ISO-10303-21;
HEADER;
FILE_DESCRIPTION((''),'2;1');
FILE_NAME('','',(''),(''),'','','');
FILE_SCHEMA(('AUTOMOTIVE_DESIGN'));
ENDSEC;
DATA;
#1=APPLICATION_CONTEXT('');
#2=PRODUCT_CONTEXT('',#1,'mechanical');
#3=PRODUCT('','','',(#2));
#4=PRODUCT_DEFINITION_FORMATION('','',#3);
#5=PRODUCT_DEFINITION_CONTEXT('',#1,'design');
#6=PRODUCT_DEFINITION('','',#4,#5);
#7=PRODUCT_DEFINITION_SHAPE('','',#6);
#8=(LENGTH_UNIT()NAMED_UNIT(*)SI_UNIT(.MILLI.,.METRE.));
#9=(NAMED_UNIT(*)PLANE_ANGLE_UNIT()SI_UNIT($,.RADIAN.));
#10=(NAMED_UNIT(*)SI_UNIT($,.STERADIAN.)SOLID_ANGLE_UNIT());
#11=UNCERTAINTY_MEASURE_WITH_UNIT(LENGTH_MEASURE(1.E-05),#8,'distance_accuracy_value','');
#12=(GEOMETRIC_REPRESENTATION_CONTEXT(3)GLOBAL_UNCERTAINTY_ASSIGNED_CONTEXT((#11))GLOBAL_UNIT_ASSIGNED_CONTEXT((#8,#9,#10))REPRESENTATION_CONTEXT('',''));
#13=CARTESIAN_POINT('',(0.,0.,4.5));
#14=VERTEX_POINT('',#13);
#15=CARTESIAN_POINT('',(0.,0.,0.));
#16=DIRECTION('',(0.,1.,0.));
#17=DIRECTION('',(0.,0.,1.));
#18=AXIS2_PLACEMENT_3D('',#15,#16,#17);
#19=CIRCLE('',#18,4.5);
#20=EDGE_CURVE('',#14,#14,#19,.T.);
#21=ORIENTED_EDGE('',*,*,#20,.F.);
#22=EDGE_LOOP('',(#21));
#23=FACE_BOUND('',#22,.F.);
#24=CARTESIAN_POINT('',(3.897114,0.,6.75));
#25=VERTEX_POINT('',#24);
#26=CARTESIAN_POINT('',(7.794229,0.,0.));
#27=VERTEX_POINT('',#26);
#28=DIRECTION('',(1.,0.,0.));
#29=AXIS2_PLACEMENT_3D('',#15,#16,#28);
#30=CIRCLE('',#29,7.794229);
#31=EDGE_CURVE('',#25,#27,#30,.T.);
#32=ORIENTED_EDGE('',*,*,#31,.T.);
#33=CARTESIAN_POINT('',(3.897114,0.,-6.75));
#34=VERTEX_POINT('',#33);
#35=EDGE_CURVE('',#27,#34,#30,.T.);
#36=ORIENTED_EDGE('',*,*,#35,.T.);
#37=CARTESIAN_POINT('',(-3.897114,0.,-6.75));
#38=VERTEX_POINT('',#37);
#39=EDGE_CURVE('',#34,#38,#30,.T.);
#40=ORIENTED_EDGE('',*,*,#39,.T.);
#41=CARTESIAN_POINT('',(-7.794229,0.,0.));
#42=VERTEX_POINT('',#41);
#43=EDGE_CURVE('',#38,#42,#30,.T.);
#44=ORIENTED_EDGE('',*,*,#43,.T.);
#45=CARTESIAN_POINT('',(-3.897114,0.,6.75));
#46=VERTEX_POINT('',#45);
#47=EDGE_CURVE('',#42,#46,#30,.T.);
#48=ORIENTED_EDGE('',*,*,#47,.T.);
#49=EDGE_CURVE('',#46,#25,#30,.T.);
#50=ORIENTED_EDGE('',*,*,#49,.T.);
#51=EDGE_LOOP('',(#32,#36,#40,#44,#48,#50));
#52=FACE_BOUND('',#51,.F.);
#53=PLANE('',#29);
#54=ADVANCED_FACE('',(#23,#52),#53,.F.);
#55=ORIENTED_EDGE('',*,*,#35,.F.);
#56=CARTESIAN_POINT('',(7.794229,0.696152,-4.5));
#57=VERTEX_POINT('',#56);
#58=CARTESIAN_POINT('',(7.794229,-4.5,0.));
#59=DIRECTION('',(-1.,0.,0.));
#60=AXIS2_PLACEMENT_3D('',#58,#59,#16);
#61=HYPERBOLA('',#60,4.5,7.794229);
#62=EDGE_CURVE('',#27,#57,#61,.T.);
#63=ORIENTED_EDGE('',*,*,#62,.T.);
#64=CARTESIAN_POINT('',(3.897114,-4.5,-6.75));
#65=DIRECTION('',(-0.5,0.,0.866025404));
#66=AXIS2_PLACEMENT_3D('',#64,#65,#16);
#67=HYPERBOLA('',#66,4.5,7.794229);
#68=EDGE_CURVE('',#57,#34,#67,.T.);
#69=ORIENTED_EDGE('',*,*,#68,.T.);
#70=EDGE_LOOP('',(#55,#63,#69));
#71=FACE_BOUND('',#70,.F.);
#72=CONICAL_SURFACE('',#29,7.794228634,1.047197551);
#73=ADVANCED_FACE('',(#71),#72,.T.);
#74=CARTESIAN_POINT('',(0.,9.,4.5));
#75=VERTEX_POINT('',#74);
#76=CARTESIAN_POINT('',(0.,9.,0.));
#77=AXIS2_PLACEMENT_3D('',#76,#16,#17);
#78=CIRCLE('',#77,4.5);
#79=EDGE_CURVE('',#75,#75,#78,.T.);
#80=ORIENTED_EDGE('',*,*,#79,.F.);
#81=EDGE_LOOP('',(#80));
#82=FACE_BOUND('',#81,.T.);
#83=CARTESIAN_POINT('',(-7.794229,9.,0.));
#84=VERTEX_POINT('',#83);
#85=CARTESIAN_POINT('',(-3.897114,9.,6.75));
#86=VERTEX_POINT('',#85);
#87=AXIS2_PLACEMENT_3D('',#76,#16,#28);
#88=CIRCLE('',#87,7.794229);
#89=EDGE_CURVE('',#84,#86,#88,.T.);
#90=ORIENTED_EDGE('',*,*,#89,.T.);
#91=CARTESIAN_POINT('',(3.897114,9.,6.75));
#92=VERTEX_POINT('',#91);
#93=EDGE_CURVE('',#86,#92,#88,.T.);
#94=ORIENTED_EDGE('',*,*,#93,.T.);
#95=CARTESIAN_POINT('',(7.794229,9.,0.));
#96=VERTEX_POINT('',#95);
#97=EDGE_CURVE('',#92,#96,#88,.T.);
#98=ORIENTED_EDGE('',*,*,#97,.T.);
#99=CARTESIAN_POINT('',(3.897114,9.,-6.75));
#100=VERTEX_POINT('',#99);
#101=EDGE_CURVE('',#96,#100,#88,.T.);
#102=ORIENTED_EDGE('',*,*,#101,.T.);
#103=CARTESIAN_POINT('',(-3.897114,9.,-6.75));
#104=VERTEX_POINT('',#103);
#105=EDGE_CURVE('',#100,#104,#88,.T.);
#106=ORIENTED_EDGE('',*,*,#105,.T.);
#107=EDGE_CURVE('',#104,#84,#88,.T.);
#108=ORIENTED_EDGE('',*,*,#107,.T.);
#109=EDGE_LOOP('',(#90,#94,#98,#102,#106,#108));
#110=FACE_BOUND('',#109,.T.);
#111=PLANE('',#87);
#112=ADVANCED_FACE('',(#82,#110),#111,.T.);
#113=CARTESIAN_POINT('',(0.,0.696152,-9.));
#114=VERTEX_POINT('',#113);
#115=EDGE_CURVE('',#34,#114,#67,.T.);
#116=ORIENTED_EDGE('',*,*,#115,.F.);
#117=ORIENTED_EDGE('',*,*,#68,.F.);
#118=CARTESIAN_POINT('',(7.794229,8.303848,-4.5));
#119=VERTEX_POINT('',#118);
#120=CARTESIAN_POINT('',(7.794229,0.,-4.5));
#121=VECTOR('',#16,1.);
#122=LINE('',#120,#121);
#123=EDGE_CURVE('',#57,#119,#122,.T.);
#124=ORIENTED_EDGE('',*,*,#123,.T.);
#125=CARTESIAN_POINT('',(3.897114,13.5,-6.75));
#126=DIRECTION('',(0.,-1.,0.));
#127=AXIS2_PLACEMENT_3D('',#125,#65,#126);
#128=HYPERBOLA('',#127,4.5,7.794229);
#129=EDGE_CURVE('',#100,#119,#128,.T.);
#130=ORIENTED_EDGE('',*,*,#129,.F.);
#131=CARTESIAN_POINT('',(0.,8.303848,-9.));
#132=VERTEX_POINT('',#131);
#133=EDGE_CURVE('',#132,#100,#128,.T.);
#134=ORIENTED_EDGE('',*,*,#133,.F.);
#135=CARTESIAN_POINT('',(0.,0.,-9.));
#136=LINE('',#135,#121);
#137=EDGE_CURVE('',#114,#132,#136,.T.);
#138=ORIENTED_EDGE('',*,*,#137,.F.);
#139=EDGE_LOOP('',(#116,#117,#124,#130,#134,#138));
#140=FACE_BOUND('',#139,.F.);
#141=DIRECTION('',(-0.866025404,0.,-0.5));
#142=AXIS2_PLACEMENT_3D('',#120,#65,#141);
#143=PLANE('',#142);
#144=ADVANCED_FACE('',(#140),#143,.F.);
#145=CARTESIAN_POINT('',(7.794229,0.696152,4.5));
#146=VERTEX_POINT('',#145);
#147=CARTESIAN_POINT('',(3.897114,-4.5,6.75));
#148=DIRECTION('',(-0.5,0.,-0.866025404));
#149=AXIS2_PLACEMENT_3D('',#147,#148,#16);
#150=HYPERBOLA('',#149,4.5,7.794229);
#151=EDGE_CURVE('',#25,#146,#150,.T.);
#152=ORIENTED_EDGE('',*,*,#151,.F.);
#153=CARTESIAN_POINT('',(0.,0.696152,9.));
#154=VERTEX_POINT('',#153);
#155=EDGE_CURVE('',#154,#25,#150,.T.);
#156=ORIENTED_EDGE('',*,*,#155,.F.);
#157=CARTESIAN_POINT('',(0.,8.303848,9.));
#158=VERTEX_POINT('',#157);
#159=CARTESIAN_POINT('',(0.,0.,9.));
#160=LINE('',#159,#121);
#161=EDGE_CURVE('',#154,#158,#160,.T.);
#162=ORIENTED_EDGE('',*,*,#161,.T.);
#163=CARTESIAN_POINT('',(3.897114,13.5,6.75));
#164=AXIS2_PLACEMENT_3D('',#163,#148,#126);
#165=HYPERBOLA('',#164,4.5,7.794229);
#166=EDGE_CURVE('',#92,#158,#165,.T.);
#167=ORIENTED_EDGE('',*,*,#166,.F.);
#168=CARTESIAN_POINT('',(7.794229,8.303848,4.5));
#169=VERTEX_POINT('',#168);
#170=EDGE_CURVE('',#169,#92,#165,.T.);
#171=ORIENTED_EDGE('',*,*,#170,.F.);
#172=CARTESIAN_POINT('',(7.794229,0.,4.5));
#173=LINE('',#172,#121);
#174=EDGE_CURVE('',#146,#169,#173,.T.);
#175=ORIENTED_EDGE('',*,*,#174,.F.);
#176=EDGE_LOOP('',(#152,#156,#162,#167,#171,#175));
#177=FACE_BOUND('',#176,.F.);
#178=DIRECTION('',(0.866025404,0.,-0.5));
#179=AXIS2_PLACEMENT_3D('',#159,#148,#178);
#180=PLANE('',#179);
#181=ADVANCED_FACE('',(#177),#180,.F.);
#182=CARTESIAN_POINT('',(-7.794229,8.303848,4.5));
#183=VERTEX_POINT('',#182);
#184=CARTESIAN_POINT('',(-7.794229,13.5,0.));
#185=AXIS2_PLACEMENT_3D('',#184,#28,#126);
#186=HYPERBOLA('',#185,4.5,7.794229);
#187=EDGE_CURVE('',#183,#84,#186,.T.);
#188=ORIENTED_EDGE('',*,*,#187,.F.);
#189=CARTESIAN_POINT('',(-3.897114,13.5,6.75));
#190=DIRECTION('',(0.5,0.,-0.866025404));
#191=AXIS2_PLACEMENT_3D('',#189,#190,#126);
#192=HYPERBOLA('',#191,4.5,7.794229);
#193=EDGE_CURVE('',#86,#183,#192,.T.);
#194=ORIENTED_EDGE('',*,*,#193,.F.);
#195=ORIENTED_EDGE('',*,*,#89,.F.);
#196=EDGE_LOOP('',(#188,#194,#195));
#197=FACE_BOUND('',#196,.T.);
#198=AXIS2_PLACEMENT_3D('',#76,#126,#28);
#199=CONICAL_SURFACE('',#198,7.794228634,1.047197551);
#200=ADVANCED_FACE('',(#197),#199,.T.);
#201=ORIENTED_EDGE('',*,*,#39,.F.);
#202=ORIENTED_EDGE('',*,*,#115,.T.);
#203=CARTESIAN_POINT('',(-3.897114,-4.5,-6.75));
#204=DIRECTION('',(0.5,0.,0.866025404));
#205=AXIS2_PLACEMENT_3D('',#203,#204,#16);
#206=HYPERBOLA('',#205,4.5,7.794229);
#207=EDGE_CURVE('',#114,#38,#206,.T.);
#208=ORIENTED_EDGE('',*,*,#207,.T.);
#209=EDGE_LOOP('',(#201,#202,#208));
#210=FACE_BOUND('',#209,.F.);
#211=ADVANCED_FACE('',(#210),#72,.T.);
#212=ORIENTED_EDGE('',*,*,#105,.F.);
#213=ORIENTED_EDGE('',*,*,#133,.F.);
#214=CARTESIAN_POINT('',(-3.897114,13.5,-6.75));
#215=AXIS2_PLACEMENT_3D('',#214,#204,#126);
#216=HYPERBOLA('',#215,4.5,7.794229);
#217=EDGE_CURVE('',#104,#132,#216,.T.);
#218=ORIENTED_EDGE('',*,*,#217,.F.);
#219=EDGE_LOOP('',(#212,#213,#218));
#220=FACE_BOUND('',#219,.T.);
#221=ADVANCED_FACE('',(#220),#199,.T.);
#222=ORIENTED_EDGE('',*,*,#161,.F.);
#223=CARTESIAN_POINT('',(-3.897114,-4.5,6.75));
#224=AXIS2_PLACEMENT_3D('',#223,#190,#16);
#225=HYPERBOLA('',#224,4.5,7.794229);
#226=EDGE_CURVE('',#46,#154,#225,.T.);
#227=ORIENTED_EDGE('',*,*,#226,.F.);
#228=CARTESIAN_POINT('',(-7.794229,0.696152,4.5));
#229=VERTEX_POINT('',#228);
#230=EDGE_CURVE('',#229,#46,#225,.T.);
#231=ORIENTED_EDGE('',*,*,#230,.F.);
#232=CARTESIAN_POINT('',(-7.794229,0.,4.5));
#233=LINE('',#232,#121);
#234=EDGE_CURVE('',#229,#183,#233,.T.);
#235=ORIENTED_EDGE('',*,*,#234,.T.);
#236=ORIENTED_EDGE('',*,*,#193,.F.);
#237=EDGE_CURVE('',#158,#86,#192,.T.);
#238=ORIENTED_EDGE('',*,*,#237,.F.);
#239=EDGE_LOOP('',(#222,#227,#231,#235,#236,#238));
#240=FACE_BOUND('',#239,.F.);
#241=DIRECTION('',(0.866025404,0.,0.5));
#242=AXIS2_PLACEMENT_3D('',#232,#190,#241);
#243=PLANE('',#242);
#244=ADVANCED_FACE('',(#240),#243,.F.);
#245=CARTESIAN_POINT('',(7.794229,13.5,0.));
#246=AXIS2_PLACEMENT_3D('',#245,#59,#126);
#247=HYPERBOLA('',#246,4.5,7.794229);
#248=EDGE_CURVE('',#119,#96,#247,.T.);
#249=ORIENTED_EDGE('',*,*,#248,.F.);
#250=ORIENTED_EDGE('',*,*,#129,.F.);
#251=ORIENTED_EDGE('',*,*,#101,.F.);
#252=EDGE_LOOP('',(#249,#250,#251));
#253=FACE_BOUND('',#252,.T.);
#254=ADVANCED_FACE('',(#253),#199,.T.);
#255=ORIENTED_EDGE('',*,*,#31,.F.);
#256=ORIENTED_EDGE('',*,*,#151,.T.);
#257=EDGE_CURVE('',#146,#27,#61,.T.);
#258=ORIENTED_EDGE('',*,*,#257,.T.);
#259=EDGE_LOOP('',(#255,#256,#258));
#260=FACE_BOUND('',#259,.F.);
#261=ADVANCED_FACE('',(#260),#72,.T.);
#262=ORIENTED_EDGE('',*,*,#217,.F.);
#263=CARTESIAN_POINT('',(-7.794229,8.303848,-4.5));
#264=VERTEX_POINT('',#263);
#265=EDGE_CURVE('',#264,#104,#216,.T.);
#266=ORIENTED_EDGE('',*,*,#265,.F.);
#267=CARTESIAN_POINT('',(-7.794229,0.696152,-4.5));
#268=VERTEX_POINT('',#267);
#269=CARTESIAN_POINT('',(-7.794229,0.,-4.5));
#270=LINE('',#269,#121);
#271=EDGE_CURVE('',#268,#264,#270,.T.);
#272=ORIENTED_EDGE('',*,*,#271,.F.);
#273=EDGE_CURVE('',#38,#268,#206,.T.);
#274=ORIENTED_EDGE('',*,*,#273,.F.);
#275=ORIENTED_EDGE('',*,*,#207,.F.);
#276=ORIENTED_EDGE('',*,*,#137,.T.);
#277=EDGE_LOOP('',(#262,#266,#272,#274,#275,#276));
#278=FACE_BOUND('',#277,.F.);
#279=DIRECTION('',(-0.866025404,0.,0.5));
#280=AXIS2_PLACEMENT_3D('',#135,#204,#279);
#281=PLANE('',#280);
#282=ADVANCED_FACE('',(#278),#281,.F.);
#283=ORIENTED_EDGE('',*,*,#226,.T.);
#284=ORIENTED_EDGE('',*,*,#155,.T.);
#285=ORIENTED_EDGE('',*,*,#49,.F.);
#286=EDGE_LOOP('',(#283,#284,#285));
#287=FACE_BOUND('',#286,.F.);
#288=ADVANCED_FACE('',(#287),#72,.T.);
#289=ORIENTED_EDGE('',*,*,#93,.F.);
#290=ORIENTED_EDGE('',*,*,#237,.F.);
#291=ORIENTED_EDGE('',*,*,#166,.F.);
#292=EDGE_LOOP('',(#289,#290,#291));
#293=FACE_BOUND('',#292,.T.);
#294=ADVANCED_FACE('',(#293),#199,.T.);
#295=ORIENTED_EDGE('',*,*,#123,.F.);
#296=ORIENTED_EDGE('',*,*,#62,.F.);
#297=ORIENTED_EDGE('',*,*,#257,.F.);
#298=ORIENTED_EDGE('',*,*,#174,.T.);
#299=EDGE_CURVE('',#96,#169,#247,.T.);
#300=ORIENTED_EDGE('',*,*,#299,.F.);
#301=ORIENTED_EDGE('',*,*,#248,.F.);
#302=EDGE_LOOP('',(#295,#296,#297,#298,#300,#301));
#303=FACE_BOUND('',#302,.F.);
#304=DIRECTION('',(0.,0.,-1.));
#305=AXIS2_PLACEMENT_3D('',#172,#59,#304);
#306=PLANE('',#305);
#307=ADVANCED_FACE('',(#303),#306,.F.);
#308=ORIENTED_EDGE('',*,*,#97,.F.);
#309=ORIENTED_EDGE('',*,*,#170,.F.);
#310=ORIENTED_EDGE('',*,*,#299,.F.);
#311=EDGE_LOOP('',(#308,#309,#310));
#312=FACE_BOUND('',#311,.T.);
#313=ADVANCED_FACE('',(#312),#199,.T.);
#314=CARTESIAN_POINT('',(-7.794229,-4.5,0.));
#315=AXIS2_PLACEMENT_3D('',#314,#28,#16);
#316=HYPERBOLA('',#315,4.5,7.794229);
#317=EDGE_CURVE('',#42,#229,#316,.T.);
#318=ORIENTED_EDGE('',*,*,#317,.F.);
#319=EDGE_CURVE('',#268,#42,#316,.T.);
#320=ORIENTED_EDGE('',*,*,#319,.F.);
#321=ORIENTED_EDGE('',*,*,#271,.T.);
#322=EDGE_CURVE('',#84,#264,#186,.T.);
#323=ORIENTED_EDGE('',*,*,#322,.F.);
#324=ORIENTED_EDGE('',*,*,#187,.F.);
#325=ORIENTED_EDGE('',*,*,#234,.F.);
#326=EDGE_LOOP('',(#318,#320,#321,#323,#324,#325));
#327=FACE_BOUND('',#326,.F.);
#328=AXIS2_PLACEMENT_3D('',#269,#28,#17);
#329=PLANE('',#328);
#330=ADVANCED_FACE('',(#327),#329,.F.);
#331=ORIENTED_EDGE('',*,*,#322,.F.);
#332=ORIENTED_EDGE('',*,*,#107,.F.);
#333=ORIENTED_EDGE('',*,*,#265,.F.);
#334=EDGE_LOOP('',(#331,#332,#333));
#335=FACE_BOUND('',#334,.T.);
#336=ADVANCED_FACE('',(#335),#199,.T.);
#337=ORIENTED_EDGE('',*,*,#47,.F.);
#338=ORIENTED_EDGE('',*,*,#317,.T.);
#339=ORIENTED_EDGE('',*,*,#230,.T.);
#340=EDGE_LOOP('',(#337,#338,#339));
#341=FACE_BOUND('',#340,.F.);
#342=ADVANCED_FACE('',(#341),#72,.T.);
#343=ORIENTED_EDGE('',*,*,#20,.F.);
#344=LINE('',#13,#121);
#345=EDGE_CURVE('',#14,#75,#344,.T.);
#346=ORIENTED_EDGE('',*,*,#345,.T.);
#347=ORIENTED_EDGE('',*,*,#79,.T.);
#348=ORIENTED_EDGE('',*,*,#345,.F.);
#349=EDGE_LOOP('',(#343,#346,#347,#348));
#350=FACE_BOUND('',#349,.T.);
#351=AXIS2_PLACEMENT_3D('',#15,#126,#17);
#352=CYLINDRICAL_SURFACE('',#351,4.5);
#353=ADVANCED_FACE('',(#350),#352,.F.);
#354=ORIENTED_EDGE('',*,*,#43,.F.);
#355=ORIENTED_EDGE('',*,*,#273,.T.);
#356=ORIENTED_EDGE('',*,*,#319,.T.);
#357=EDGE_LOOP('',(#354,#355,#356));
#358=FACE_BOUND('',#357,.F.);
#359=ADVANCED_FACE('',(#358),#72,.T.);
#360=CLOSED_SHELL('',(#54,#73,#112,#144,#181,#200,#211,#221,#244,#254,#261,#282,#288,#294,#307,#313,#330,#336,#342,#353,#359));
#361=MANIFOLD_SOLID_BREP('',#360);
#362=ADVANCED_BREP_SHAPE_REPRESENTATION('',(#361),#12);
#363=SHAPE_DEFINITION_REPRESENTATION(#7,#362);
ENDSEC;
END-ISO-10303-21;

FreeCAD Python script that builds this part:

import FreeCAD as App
import Part
import Sketcher
from FreeCAD import Vector
Q = App.Units.Quantity


def add_polygon(sketch, points):
    """Adds a closed chain of lines whose ends are joined by coincident constraints."""
    first, n = sketch.GeometryCount, len(points)
    for a, b in zip(points, points[1:] + points[:1]):
        sketch.addGeometry(Part.LineSegment(App.Vector(*a, 0), App.Vector(*b, 0)), False)
    for i in range(n):
        sketch.addConstraint(Sketcher.Constraint("Coincident", first + i, 2, first + (i + 1) % n, 1))

doc = App.newDocument("Part")
params = doc.addObject("Spreadsheet::Sheet", "Params")
for row, (alias, value) in enumerate([
    ("sketch1_diameter", "9 mm"),
    ("sketch1_height", "9 mm"),
    ("sketch1_length", "9 mm"),
    ("pad1_length", "9 mm"),
    ("sketch2_height", "32.02 mm"),
    ("pocket1_length", "1 mm"),
    ("pocket1_taper", "60 deg"),
    ("sketch3_height", "32.02 mm"),
    ("pocket2_length", "1 mm"),
    ("pocket2_taper", "-60 deg"),
], start=1):
    params.set(f"A{row}", alias)
    params.set(f"B{row}", "=" + value)
    params.setAlias(f"B{row}", alias)

body = doc.addObject("PartDesign::Body", "Body")

sketch1 = body.newObject("Sketcher::SketchObject", "Sketch")
sketch1.AttachmentSupport = (doc.getObject("XZ_Plane"), [""])
sketch1.MapMode = "FlatFace"
add_polygon(sketch1, [(7.794229, -4.5), (0, -9), (-7.794229, -4.5), (-7.794229, 4.5), (0, 9), (7.794229, 4.5)])
sketch1.addGeometry(Part.Circle(Vector(0, 0, 0), Vector(0, 0, 1), 4.5), False)
sketch1.addConstraint(Sketcher.Constraint("Vertical", 2))
sketch1.addConstraint(Sketcher.Constraint("Vertical", 5))
sketch1.addConstraint(Sketcher.Constraint("Coincident", 6, 3, -1, 1))
sketch1.addConstraint(Sketcher.Constraint("Symmetric", 0, 2, 3, 2, -1, 1))
sketch1.addConstraint(Sketcher.Constraint("Symmetric", 1, 2, 4, 2, -1, 1))
sketch1.addConstraint(Sketcher.Constraint("PointOnObject", 0, 2, -2))
sketch1.addConstraint(Sketcher.Constraint("Parallel", 0, 3))
sketch1.addConstraint(Sketcher.Constraint("Horizontal", 2, 2, 4, 2))
sketch1.addConstraint(Sketcher.Constraint("Diameter", 6, 9.0))
sketch1.addConstraint(Sketcher.Constraint("DistanceY", 2, 1, 2, 2, 9.0))
sketch1.addConstraint(Sketcher.Constraint("Angle", 0, Q("-150 deg")))
sketch1.addConstraint(Sketcher.Constraint("Distance", 0, 9.0))
sketch1.setExpression("Constraints[14]", "Params.sketch1_diameter")
sketch1.setExpression("Constraints[15]", "Params.sketch1_height")
sketch1.setExpression("Constraints[17]", "Params.sketch1_length")
pad1 = body.newObject("PartDesign::Pad", "Pad")
pad1.Profile = sketch1
pad1.setExpression("Length", "Params.pad1_length")
pad1.Reversed = True

sketch2 = body.newObject("Sketcher::SketchObject", "Sketch001")
sketch2.AttachmentSupport = (doc.getObject("XZ_Plane"), [""])
sketch2.MapMode = "FlatFace"
add_polygon(sketch2, [(-14.804, -16.01), (-14.804, 16.01), (14.804, 16.01), (14.804, -16.01)])
sketch2.addGeometry(Part.Circle(Vector(0, 0, 0), Vector(0, 0, 1), 7.794229), False)
sketch2.addConstraint(Sketcher.Constraint("Vertical", 0))
sketch2.addConstraint(Sketcher.Constraint("Horizontal", 1))
sketch2.addConstraint(Sketcher.Constraint("Vertical", 2))
sketch2.addConstraint(Sketcher.Constraint("Horizontal", 3))
sketch2.addConstraint(Sketcher.Constraint("Coincident", 4, 3, -1, 1))
sketch2.addConstraint(Sketcher.Constraint("Symmetric", 0, 2, 2, 2, -1, 1))
sketch2.addConstraint(Sketcher.Constraint("DistanceY", 0, 1, 0, 2, 32.02))
sketch2.addConstraint(Sketcher.Constraint("DistanceX", 1, 1, 1, 2, 29.608))
sketch2.addConstraint(Sketcher.Constraint("Diameter", 4, 15.588457))
sketch2.setExpression("Constraints[10]", "Params.sketch2_height")
pocket1 = body.newObject("PartDesign::Pocket", "Pocket")
pocket1.Profile = sketch2
pocket1.setExpression("Length", "Params.pocket1_length")
pocket1.setExpression("TaperAngle", "Params.pocket1_taper")

sketch3 = body.newObject("Sketcher::SketchObject", "Sketch002")
sketch3.AttachmentSupport = (doc.getObject("XZ_Plane"), [""])
sketch3.MapMode = "FlatFace"
add_polygon(sketch3, [(-14.804, -16.01), (-14.804, 16.01), (14.804, 16.01), (14.804, -16.01)])
sketch3.addGeometry(Part.Circle(Vector(0, 0, 0), Vector(0, 0, 1), 7.794229), False)
sketch3.addConstraint(Sketcher.Constraint("Vertical", 0))
sketch3.addConstraint(Sketcher.Constraint("Horizontal", 1))
sketch3.addConstraint(Sketcher.Constraint("Vertical", 2))
sketch3.addConstraint(Sketcher.Constraint("Horizontal", 3))
sketch3.addConstraint(Sketcher.Constraint("Coincident", 4, 3, -1, 1))
sketch3.addConstraint(Sketcher.Constraint("Symmetric", 0, 2, 2, 2, -1, 1))
sketch3.addConstraint(Sketcher.Constraint("DistanceY", 0, 1, 0, 2, 32.02))
sketch3.addConstraint(Sketcher.Constraint("DistanceX", 1, 1, 1, 2, 29.608))
sketch3.addConstraint(Sketcher.Constraint("Diameter", 4, 15.588457))
sketch3.setExpression("Constraints[10]", "Params.sketch3_height")
pocket2 = body.newObject("PartDesign::Pocket", "Pocket001")
pocket2.Profile = sketch3
pocket2.setExpression("Length", "Params.pocket2_length")
pocket2.Reversed = True
pocket2.setExpression("TaperAngle", "Params.pocket2_taper")
doc.recompute()

datumplane = body.newObject("PartDesign::Plane", "DatumPlane")
datumplane.AttachmentSupport = (doc.getObject("XZ_Plane"), [""])
datumplane.MapMode = "FlatFace"
datumplane.AttachmentOffset = App.Placement(Vector(0, 0, -4.5), App.Rotation())
mirrored = body.newObject("PartDesign::Mirrored", "Mirrored")
mirrored.Originals = [pocket1]
mirrored.MirrorPlane = (datumplane, [""])
body.Tip = mirrored

doc.recompute()
